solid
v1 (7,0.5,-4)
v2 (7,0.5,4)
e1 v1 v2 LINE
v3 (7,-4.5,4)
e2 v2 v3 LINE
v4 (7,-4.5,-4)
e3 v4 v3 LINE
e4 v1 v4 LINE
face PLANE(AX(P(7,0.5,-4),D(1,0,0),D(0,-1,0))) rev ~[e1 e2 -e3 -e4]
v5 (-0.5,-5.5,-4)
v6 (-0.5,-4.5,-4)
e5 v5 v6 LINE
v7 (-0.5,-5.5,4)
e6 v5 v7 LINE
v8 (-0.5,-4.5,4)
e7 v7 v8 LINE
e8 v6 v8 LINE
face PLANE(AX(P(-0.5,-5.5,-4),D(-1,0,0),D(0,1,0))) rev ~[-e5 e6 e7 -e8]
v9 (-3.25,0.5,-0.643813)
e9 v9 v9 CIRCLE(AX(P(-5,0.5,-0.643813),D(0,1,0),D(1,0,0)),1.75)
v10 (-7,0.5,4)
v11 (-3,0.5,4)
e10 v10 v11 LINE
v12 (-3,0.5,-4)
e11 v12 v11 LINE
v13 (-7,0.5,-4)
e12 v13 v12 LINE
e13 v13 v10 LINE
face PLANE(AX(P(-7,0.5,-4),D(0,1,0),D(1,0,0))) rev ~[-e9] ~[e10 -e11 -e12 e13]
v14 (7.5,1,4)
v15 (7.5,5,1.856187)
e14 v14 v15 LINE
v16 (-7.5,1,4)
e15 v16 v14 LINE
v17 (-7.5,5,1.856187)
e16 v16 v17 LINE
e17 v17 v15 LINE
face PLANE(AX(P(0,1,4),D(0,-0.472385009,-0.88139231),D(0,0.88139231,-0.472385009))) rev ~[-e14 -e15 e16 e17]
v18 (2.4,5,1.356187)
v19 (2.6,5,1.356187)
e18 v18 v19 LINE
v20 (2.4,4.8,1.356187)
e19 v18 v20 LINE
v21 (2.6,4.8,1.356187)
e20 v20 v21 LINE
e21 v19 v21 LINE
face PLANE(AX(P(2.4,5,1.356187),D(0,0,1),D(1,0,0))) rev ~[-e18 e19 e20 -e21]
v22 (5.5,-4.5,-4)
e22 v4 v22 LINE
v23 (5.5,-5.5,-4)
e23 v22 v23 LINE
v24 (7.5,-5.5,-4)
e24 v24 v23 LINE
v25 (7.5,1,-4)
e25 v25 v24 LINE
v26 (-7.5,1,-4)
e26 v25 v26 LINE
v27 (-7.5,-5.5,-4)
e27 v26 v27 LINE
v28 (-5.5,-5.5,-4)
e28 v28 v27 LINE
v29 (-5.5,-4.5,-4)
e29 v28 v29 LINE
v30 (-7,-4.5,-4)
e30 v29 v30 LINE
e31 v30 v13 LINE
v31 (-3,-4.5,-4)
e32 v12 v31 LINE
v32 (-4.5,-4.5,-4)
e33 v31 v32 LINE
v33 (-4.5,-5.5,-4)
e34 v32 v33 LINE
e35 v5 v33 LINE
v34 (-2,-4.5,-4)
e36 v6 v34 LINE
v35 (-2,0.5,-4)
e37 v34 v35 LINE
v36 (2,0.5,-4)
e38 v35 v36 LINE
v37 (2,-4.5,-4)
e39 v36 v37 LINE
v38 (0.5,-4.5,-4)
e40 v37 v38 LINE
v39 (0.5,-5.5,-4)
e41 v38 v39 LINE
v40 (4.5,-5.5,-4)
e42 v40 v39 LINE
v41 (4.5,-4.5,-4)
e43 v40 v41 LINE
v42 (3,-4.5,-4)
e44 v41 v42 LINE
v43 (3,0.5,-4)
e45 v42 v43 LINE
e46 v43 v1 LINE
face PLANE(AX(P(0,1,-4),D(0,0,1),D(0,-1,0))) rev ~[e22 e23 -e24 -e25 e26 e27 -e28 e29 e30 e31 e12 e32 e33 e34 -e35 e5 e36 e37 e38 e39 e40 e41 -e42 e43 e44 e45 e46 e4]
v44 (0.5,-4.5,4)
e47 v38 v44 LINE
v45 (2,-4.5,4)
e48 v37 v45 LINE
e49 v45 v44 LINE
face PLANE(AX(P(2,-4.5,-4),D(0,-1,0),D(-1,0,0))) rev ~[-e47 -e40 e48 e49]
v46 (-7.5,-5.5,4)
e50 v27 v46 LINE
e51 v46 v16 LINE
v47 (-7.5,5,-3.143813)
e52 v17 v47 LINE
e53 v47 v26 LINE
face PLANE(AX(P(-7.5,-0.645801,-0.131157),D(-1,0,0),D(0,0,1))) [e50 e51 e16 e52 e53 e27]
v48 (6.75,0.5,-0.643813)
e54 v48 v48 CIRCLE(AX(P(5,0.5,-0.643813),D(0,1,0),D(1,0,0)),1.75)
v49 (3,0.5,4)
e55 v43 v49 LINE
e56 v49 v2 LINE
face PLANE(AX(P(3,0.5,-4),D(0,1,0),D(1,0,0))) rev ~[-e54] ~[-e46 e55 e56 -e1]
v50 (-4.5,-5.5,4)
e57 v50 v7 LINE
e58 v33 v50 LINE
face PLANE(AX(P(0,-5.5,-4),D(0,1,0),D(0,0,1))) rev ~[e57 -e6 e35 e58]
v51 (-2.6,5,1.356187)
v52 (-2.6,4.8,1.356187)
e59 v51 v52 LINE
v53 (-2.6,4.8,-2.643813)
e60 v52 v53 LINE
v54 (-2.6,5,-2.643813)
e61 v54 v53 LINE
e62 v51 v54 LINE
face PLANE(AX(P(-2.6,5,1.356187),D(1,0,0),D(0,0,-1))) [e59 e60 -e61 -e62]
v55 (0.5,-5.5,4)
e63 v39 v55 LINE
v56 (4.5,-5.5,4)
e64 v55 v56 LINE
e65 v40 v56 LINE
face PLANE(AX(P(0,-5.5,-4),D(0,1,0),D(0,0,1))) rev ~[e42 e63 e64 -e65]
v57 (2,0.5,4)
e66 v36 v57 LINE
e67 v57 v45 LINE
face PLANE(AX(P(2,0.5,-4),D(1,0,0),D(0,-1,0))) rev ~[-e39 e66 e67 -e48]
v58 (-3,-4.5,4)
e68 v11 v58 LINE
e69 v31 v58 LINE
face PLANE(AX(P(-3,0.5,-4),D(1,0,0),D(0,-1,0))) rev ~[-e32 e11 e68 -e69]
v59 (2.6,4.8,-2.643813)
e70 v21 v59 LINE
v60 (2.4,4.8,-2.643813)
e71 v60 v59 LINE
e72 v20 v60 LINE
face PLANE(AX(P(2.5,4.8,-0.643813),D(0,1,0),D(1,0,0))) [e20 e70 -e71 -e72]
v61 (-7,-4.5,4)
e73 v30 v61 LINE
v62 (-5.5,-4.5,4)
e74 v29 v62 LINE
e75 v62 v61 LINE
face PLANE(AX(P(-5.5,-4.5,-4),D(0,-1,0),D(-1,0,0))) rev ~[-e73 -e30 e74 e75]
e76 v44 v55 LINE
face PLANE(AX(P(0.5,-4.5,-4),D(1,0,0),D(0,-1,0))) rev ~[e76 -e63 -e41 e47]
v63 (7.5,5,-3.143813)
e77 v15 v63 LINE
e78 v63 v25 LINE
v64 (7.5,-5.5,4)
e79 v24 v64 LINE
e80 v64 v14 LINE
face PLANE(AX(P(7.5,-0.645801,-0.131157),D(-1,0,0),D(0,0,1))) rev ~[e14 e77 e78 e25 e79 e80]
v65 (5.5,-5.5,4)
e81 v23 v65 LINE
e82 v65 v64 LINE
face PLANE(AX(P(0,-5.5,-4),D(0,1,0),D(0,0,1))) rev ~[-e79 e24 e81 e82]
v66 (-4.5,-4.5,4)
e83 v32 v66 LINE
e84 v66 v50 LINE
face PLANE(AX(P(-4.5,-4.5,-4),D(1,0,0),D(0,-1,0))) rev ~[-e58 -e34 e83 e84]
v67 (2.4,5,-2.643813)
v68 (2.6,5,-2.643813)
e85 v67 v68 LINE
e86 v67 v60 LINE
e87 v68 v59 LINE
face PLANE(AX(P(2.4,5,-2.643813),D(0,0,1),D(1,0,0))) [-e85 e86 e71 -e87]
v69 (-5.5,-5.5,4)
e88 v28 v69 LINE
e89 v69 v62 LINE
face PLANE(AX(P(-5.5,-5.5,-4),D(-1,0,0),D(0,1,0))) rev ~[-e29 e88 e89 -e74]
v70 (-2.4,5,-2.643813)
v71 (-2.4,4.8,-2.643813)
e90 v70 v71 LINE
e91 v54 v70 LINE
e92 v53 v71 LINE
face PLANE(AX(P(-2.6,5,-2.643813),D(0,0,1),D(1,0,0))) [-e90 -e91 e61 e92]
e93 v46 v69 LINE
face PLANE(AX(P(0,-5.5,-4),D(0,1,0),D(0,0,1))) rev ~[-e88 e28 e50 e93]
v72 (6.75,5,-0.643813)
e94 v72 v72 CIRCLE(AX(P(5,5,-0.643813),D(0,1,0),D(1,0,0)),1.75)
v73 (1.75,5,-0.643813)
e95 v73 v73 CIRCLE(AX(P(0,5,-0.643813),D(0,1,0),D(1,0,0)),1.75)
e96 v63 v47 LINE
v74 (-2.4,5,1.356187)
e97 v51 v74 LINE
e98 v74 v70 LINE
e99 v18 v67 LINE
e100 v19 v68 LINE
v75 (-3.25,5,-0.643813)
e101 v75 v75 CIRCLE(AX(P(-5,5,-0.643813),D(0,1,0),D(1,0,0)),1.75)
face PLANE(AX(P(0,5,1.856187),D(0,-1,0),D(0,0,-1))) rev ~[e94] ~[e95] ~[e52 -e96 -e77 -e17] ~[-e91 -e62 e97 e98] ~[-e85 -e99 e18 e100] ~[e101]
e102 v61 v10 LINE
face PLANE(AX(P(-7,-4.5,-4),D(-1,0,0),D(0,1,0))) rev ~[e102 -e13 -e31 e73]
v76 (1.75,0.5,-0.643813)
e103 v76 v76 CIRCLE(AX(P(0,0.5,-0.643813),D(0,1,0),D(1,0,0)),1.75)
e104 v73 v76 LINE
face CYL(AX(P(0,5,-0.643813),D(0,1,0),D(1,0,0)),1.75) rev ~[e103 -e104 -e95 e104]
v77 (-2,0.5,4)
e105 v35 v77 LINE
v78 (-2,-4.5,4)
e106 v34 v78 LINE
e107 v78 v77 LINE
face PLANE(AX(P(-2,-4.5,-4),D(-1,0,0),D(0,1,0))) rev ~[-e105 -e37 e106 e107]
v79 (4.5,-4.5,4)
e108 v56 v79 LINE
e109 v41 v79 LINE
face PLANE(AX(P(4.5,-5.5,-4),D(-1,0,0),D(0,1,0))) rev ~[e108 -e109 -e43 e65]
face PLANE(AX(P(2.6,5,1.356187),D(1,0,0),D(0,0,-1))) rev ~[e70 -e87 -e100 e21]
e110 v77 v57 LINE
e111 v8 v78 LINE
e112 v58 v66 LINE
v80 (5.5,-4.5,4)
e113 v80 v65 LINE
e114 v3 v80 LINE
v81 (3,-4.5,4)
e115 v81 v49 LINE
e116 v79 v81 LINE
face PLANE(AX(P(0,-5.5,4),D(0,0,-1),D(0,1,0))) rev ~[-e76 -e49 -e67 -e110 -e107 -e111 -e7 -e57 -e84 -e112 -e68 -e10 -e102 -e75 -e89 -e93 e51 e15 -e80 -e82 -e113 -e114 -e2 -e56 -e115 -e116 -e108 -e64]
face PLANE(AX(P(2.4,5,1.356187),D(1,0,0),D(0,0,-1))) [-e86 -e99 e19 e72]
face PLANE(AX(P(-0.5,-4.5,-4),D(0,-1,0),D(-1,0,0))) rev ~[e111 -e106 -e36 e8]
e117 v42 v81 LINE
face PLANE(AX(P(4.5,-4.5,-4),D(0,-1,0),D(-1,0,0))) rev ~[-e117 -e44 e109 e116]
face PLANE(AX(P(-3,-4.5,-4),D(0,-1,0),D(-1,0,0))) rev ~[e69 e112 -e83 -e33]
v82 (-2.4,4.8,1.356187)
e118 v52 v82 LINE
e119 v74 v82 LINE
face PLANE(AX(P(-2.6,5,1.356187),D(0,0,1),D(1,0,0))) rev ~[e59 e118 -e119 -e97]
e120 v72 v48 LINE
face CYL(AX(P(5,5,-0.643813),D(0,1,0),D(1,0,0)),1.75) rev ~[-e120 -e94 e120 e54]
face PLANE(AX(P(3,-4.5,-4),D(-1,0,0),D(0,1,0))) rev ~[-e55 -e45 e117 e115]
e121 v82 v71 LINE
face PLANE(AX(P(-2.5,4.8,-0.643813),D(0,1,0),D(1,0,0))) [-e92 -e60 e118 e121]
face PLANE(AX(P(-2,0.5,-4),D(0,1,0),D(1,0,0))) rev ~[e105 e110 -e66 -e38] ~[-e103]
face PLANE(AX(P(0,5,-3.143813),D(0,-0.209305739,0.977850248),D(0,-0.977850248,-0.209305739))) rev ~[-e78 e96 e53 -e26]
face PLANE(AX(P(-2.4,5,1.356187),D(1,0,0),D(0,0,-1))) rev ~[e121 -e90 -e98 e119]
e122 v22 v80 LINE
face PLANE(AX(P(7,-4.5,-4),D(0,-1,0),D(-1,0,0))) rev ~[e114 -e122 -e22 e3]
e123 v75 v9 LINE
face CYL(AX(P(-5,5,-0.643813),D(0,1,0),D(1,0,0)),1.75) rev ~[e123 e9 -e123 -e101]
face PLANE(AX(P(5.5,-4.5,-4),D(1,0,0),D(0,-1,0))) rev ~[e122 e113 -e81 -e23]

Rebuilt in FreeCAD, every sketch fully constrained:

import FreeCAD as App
import Part
import Sketcher
from FreeCAD import Vector

doc = App.newDocument("Part")
body = doc.addObject("PartDesign::Body", "Body")

sketch1 = body.newObject("Sketcher::SketchObject", "Sketch")
sketch1.AttachmentSupport = (doc.getObject("YZ_Plane"), [""])
sketch1.MapMode = "FlatFace"
sketch1.addGeometry(Part.LineSegment(Vector(5, -3.1, 0), Vector(5, 1.9, 0)), False)
sketch1.addGeometry(Part.LineSegment(Vector(5, 1.9, 0), Vector(1, 4, 0)), False)
sketch1.addGeometry(Part.LineSegment(Vector(1, 4, 0), Vector(-5.5, 4, 0)), False)
sketch1.addGeometry(Part.LineSegment(Vector(-5.5, 4, 0), Vector(-5.5, -4, 0)), False)
sketch1.addGeometry(Part.LineSegment(Vector(-5.5, -4, 0), Vector(1, -4, 0)), False)
sketch1.addGeometry(Part.LineSegment(Vector(1, -4, 0), Vector(5, -3.1, 0)), False)
sketch1.addConstraint(Sketcher.Constraint("Coincident", 0, 2, 1, 1))
sketch1.addConstraint(Sketcher.Constraint("Coincident", 1, 2, 2, 1))
sketch1.addConstraint(Sketcher.Constraint("Coincident", 2, 2, 3, 1))
sketch1.addConstraint(Sketcher.Constraint("Coincident", 3, 2, 4, 1))
sketch1.addConstraint(Sketcher.Constraint("Coincident", 4, 2, 5, 1))
sketch1.addConstraint(Sketcher.Constraint("Coincident", 5, 2, 0, 1))
sketch1.addConstraint(Sketcher.Constraint("Vertical", 0))
sketch1.addConstraint(Sketcher.Constraint("Horizontal", 2))
sketch1.addConstraint(Sketcher.Constraint("Vertical", 3))
sketch1.addConstraint(Sketcher.Constraint("Horizontal", 4))
sketch1.addConstraint(Sketcher.Constraint("Symmetric", 1, 2, 4, 2, -1))
sketch1.addConstraint(Sketcher.Constraint("DistanceY", 0, 1, 0, 2, 5.0))
sketch1.addConstraint(Sketcher.Constraint("DistanceY", 3, 2, 3, 1, 8.0))
sketch1.addConstraint(Sketcher.Constraint("DistanceX", 2, 2, 2, 1, 6.5))
sketch1.addConstraint(Sketcher.Constraint("DistanceX", -1, 1, 0, 2, 5.0))
sketch1.addConstraint(Sketcher.Constraint("DistanceX", -1, 1, 1, 2, 1.0))
sketch1.addConstraint(Sketcher.Constraint("Distance", 1, 4.538274))
pad1 = body.newObject("PartDesign::Pad", "Pad")
pad1.Profile = sketch1
pad1.Type = "TwoLengths"
pad1.Length = 7.5
pad1.Length2 = 7.5

sketch2 = body.newObject("Sketcher::SketchObject", "Sketch001")
sketch2.AttachmentSupport = (doc.getObject("XY_Plane"), [""])
sketch2.MapMode = "FlatFace"
sketch2.AttachmentOffset = App.Placement(Vector(0, 0, -4), App.Rotation())
sketch2.addGeometry(Part.LineSegment(Vector(0.5, -4.5, 0), Vector(0.5, -5.5, 0)), False)
sketch2.addGeometry(Part.LineSegment(Vector(0.5, -5.5, 0), Vector(-0.5, -5.5, 0)), False)
sketch2.addGeometry(Part.LineSegment(Vector(-0.5, -5.5, 0), Vector(-0.5, -4.5, 0)), False)
sketch2.addGeometry(Part.LineSegment(Vector(-0.5, -4.5, 0), Vector(-2, -4.5, 0)), False)
sketch2.addGeometry(Part.LineSegment(Vector(-2, -4.5, 0), Vector(-2, 0.5, 0)), False)
sketch2.addGeometry(Part.LineSegment(Vector(-2, 0.5, 0), Vector(2, 0.5, 0)), False)
sketch2.addGeometry(Part.LineSegment(Vector(2, 0.5, 0), Vector(2, -4.5, 0)), False)
sketch2.addGeometry(Part.LineSegment(Vector(2, -4.5, 0), Vector(0.5, -4.5, 0)), False)
sketch2.addGeometry(Part.LineSegment(Vector(-3, 0.5, 0), Vector(-3, -4.5, 0)), False)
sketch2.addGeometry(Part.LineSegment(Vector(-3, -4.5, 0), Vector(-4.5, -4.5, 0)), False)
sketch2.addGeometry(Part.LineSegment(Vector(-4.5, -4.5, 0), Vector(-4.5, -5.5, 0)), False)
sketch2.addGeometry(Part.LineSegment(Vector(-4.5, -5.5, 0), Vector(-5.5, -5.5, 0)), False)
sketch2.addGeometry(Part.LineSegment(Vector(-5.5, -5.5, 0), Vector(-5.5, -4.5, 0)), False)
sketch2.addGeometry(Part.LineSegment(Vector(-5.5, -4.5, 0), Vector(-7, -4.5, 0)), False)
sketch2.addGeometry(Part.LineSegment(Vector(-7, -4.5, 0), Vector(-7, 0.5, 0)), False)
sketch2.addGeometry(Part.LineSegment(Vector(-7, 0.5, 0), Vector(-3, 0.5, 0)), False)
sketch2.addGeometry(Part.LineSegment(Vector(7, 0.5, 0), Vector(7, -4.5, 0)), False)
sketch2.addGeometry(Part.LineSegment(Vector(7, -4.5, 0), Vector(5.5, -4.5, 0)), False)
sketch2.addGeometry(Part.LineSegment(Vector(5.5, -4.5, 0), Vector(5.5, -5.5, 0)), False)
sketch2.addGeometry(Part.LineSegment(Vector(5.5, -5.5, 0), Vector(4.5, -5.5, 0)), False)
sketch2.addGeometry(Part.LineSegment(Vector(4.5, -5.5, 0), Vector(4.5, -4.5, 0)), False)
sketch2.addGeometry(Part.LineSegment(Vector(4.5, -4.5, 0), Vector(3, -4.5, 0)), False)
sketch2.addGeometry(Part.LineSegment(Vector(3, -4.5, 0), Vector(3, 0.5, 0)), False)
sketch2.addGeometry(Part.LineSegment(Vector(3, 0.5, 0), Vector(7, 0.5, 0)), False)
sketch2.addConstraint(Sketcher.Constraint("Coincident", 0, 2, 1, 1))
sketch2.addConstraint(Sketcher.Constraint("Coincident", 1, 2, 2, 1))
sketch2.addConstraint(Sketcher.Constraint("Coincident", 2, 2, 3, 1))
sketch2.addConstraint(Sketcher.Constraint("Coincident", 3, 2, 4, 1))
sketch2.addConstraint(Sketcher.Constraint("Coincident", 4, 2, 5, 1))
sketch2.addConstraint(Sketcher.Constraint("Coincident", 5, 2, 6, 1))
sketch2.addConstraint(Sketcher.Constraint("Coincident", 6, 2, 7, 1))
sketch2.addConstraint(Sketcher.Constraint("Coincident", 7, 2, 0, 1))
sketch2.addConstraint(Sketcher.Constraint("Coincident", 8, 2, 9, 1))
sketch2.addConstraint(Sketcher.Constraint("Coincident", 9, 2, 10, 1))
sketch2.addConstraint(Sketcher.Constraint("Coincident", 10, 2, 11, 1))
sketch2.addConstraint(Sketcher.Constraint("Coincident", 11, 2, 12, 1))
sketch2.addConstraint(Sketcher.Constraint("Coincident", 12, 2, 13, 1))
sketch2.addConstraint(Sketcher.Constraint("Coincident", 13, 2, 14, 1))
sketch2.addConstraint(Sketcher.Constraint("Coincident", 14, 2, 15, 1))
sketch2.addConstraint(Sketcher.Constraint("Coincident", 15, 2, 8, 1))
sketch2.addConstraint(Sketcher.Constraint("Coincident", 16, 2, 17, 1))
sketch2.addConstraint(Sketcher.Constraint("Coincident", 17, 2, 18, 1))
sketch2.addConstraint(Sketcher.Constraint("Coincident", 18, 2, 19, 1))
sketch2.addConstraint(Sketcher.Constraint("Coincident", 19, 2, 20, 1))
sketch2.addConstraint(Sketcher.Constraint("Coincident", 20, 2, 21, 1))
sketch2.addConstraint(Sketcher.Constraint("Coincident", 21, 2, 22, 1))
sketch2.addConstraint(Sketcher.Constraint("Coincident", 22, 2, 23, 1))
sketch2.addConstraint(Sketcher.Constraint("Coincident", 23, 2, 16, 1))
sketch2.addConstraint(Sketcher.Constraint("Vertical", 0))
sketch2.addConstraint(Sketcher.Constraint("Horizontal", 1))
sketch2.addConstraint(Sketcher.Constraint("Vertical", 2))
sketch2.addConstraint(Sketcher.Constraint("Horizontal", 3))
sketch2.addConstraint(Sketcher.Constraint("Vertical", 4))
sketch2.addConstraint(Sketcher.Constraint("Horizontal", 5))
sketch2.addConstraint(Sketcher.Constraint("Vertical", 6))
sketch2.addConstraint(Sketcher.Constraint("Horizontal", 7))
sketch2.addConstraint(Sketcher.Constraint("Vertical", 8))
sketch2.addConstraint(Sketcher.Constraint("Horizontal", 9))
sketch2.addConstraint(Sketcher.Constraint("Vertical", 10))
sketch2.addConstraint(Sketcher.Constraint("Horizontal", 11))
sketch2.addConstraint(Sketcher.Constraint("Vertical", 12))
sketch2.addConstraint(Sketcher.Constraint("Horizontal", 13))
sketch2.addConstraint(Sketcher.Constraint("Vertical", 14))
sketch2.addConstraint(Sketcher.Constraint("Horizontal", 15))
sketch2.addConstraint(Sketcher.Constraint("Vertical", 16))
sketch2.addConstraint(Sketcher.Constraint("Horizontal", 17))
sketch2.addConstraint(Sketcher.Constraint("Vertical", 18))
sketch2.addConstraint(Sketcher.Constraint("Horizontal", 19))
sketch2.addConstraint(Sketcher.Constraint("Vertical", 20))
sketch2.addConstraint(Sketcher.Constraint("Horizontal", 21))
sketch2.addConstraint(Sketcher.Constraint("Vertical", 22))
sketch2.addConstraint(Sketcher.Constraint("Horizontal", 23))
sketch2.addConstraint(Sketcher.Constraint("Symmetric", 3, 2, 6, 2, -2))
sketch2.addConstraint(Sketcher.Constraint("Symmetric", 13, 2, 16, 2, -2))
sketch2.addConstraint(Sketcher.Constraint("Symmetric", 11, 2, 18, 2, -2))
sketch2.addConstraint(Sketcher.Constraint("Symmetric", 9, 2, 20, 2, -2))
sketch2.addConstraint(Sketcher.Constraint("Symmetric", 15, 2, 22, 2, -2))
sketch2.addConstraint(Sketcher.Constraint("Horizontal", 7, 2, 8, 2))
sketch2.addConstraint(Sketcher.Constraint("Horizontal", 1, 2, 10, 2))
sketch2.addConstraint(Sketcher.Constraint("Horizontal", 9, 2, 12, 2))
sketch2.addConstraint(Sketcher.Constraint("Horizontal", 5, 2, 14, 2))
sketch2.addConstraint(Sketcher.Constraint("Equal", 3, 7))
sketch2.addConstraint(Sketcher.Constraint("Equal", 7, 9))
sketch2.addConstraint(Sketcher.Constraint("Equal", 1, 11))
sketch2.addConstraint(Sketcher.Constraint("Equal", 9, 13))
sketch2.addConstraint(Sketcher.Constraint("Equal", 19, 0))
sketch2.addConstraint(Sketcher.Constraint("DistanceX", 1, 2, 1, 1, 1.0))
sketch2.addConstraint(Sketcher.Constraint("DistanceX", 5, 1, 5, 2, 4.0))
sketch2.addConstraint(Sketcher.Constraint("DistanceY", 4, 1, 4, 2, 5.0))
sketch2.addConstraint(Sketcher.Constraint("DistanceX", 8, 2, -1, 1, 3.0))
sketch2.addConstraint(Sketcher.Constraint("DistanceY", 0, 2, -1, 1, 5.5))
pocket1 = body.newObject("PartDesign::Pocket", "Pocket")
pocket1.Profile = sketch2
pocket1.Type = "ThroughAll"
pocket1.Reversed = True

sketch3 = body.newObject("Sketcher::SketchObject", "Sketch002")
sketch3.AttachmentSupport = (doc.getObject("XZ_Plane"), [""])
sketch3.MapMode = "FlatFace"
sketch3.AttachmentOffset = App.Placement(Vector(0, 0, -5), App.Rotation())
sketch3.addGeometry(Part.Circle(Vector(0, -0.6, 0), Vector(0, 0, 1), 1.8), False)
sketch3.addGeometry(Part.Circle(Vector(-5, -0.6, 0), Vector(0, 0, 1), 1.8), False)
sketch3.addGeometry(Part.Circle(Vector(5, -0.6, 0), Vector(0, 0, 1), 1.8), False)
sketch3.addConstraint(Sketcher.Constraint("Equal", 0, 1))
sketch3.addConstraint(Sketcher.Constraint("Equal", 1, 2))
sketch3.addConstraint(Sketcher.Constraint("Symmetric", 1, 3, 2, 3, -2))
sketch3.addConstraint(Sketcher.Constraint("PointOnObject", 0, 3, -2))
sketch3.addConstraint(Sketcher.Constraint("Horizontal", 0, 3, 1, 3))
sketch3.addConstraint(Sketcher.Constraint("Diameter", 0, 3.5))
sketch3.addConstraint(Sketcher.Constraint("DistanceX", 1, 3, -1, 1, 5.0))
sketch3.addConstraint(Sketcher.Constraint("DistanceY", 0, 3, -1, 1, 0.643813))
pocket2 = body.newObject("PartDesign::Pocket", "Pocket001")
pocket2.Profile = sketch3
pocket2.Length = 7.5
pocket2.Reversed = True

sketch4 = body.newObject("Sketcher::SketchObject", "Sketch003")
sketch4.AttachmentSupport = (doc.getObject("XZ_Plane"), [""])
sketch4.MapMode = "FlatFace"
sketch4.AttachmentOffset = App.Placement(Vector(0, 0, -5), App.Rotation())
sketch4.addGeometry(Part.LineSegment(Vector(-2.6, -2.64, 0), Vector(-2.6, 1.36, 0)), False)
sketch4.addGeometry(Part.LineSegment(Vector(-2.6, 1.36, 0), Vector(-2.4, 1.36, 0)), False)
sketch4.addGeometry(Part.LineSegment(Vector(-2.4, 1.36, 0), Vector(-2.4, -2.64, 0)), False)
sketch4.addGeometry(Part.LineSegment(Vector(-2.4, -2.64, 0), Vector(-2.6, -2.64, 0)), False)
sketch4.addGeometry(Part.LineSegment(Vector(2.4, -2.64, 0), Vector(2.4, 1.36, 0)), False)
sketch4.addGeometry(Part.LineSegment(Vector(2.4, 1.36, 0), Vector(2.6, 1.36, 0)), False)
sketch4.addGeometry(Part.LineSegment(Vector(2.6, 1.36, 0), Vector(2.6, -2.64, 0)), False)
sketch4.addGeometry(Part.LineSegment(Vector(2.6, -2.64, 0), Vector(2.4, -2.64, 0)), False)
sketch4.addConstraint(Sketcher.Constraint("Coincident", 0, 2, 1, 1))
sketch4.addConstraint(Sketcher.Constraint("Coincident", 1, 2, 2, 1))
sketch4.addConstraint(Sketcher.Constraint("Coincident", 2, 2, 3, 1))
sketch4.addConstraint(Sketcher.Constraint("Coincident", 3, 2, 0, 1))
sketch4.addConstraint(Sketcher.Constraint("Coincident", 4, 2, 5, 1))
sketch4.addConstraint(Sketcher.Constraint("Coincident", 5, 2, 6, 1))
sketch4.addConstraint(Sketcher.Constraint("Coincident", 6, 2, 7, 1))
sketch4.addConstraint(Sketcher.Constraint("Coincident", 7, 2, 4, 1))
sketch4.addConstraint(Sketcher.Constraint("Vertical", 0))
sketch4.addConstraint(Sketcher.Constraint("Horizontal", 1))
sketch4.addConstraint(Sketcher.Constraint("Vertical", 2))
sketch4.addConstraint(Sketcher.Constraint("Horizontal", 3))
sketch4.addConstraint(Sketcher.Constraint("Vertical", 4))
sketch4.addConstraint(Sketcher.Constraint("Horizontal", 5))
sketch4.addConstraint(Sketcher.Constraint("Vertical", 6))
sketch4.addConstraint(Sketcher.Constraint("Horizontal", 7))
sketch4.addConstraint(Sketcher.Constraint("Symmetric", 1, 2, 4, 2, -2))
sketch4.addConstraint(Sketcher.Constraint("Symmetric", 3, 2, 6, 2, -2))
sketch4.addConstraint(Sketcher.Constraint("DistanceY", 0, 1, 0, 2, 4.0))
sketch4.addConstraint(Sketcher.Constraint("DistanceX", 1, 1, 1, 2, 0.2))
sketch4.addConstraint(Sketcher.Constraint("DistanceX", 0, 2, 4, 2, 5.0))
sketch4.addConstraint(Sketcher.Constraint("DistanceY", -1, 1, 0, 2, 1.356187))
pocket3 = body.newObject("PartDesign::Pocket", "Pocket002")
pocket3.Profile = sketch4
pocket3.Length = 0.2
pocket3.Reversed = True

doc.recompute()
